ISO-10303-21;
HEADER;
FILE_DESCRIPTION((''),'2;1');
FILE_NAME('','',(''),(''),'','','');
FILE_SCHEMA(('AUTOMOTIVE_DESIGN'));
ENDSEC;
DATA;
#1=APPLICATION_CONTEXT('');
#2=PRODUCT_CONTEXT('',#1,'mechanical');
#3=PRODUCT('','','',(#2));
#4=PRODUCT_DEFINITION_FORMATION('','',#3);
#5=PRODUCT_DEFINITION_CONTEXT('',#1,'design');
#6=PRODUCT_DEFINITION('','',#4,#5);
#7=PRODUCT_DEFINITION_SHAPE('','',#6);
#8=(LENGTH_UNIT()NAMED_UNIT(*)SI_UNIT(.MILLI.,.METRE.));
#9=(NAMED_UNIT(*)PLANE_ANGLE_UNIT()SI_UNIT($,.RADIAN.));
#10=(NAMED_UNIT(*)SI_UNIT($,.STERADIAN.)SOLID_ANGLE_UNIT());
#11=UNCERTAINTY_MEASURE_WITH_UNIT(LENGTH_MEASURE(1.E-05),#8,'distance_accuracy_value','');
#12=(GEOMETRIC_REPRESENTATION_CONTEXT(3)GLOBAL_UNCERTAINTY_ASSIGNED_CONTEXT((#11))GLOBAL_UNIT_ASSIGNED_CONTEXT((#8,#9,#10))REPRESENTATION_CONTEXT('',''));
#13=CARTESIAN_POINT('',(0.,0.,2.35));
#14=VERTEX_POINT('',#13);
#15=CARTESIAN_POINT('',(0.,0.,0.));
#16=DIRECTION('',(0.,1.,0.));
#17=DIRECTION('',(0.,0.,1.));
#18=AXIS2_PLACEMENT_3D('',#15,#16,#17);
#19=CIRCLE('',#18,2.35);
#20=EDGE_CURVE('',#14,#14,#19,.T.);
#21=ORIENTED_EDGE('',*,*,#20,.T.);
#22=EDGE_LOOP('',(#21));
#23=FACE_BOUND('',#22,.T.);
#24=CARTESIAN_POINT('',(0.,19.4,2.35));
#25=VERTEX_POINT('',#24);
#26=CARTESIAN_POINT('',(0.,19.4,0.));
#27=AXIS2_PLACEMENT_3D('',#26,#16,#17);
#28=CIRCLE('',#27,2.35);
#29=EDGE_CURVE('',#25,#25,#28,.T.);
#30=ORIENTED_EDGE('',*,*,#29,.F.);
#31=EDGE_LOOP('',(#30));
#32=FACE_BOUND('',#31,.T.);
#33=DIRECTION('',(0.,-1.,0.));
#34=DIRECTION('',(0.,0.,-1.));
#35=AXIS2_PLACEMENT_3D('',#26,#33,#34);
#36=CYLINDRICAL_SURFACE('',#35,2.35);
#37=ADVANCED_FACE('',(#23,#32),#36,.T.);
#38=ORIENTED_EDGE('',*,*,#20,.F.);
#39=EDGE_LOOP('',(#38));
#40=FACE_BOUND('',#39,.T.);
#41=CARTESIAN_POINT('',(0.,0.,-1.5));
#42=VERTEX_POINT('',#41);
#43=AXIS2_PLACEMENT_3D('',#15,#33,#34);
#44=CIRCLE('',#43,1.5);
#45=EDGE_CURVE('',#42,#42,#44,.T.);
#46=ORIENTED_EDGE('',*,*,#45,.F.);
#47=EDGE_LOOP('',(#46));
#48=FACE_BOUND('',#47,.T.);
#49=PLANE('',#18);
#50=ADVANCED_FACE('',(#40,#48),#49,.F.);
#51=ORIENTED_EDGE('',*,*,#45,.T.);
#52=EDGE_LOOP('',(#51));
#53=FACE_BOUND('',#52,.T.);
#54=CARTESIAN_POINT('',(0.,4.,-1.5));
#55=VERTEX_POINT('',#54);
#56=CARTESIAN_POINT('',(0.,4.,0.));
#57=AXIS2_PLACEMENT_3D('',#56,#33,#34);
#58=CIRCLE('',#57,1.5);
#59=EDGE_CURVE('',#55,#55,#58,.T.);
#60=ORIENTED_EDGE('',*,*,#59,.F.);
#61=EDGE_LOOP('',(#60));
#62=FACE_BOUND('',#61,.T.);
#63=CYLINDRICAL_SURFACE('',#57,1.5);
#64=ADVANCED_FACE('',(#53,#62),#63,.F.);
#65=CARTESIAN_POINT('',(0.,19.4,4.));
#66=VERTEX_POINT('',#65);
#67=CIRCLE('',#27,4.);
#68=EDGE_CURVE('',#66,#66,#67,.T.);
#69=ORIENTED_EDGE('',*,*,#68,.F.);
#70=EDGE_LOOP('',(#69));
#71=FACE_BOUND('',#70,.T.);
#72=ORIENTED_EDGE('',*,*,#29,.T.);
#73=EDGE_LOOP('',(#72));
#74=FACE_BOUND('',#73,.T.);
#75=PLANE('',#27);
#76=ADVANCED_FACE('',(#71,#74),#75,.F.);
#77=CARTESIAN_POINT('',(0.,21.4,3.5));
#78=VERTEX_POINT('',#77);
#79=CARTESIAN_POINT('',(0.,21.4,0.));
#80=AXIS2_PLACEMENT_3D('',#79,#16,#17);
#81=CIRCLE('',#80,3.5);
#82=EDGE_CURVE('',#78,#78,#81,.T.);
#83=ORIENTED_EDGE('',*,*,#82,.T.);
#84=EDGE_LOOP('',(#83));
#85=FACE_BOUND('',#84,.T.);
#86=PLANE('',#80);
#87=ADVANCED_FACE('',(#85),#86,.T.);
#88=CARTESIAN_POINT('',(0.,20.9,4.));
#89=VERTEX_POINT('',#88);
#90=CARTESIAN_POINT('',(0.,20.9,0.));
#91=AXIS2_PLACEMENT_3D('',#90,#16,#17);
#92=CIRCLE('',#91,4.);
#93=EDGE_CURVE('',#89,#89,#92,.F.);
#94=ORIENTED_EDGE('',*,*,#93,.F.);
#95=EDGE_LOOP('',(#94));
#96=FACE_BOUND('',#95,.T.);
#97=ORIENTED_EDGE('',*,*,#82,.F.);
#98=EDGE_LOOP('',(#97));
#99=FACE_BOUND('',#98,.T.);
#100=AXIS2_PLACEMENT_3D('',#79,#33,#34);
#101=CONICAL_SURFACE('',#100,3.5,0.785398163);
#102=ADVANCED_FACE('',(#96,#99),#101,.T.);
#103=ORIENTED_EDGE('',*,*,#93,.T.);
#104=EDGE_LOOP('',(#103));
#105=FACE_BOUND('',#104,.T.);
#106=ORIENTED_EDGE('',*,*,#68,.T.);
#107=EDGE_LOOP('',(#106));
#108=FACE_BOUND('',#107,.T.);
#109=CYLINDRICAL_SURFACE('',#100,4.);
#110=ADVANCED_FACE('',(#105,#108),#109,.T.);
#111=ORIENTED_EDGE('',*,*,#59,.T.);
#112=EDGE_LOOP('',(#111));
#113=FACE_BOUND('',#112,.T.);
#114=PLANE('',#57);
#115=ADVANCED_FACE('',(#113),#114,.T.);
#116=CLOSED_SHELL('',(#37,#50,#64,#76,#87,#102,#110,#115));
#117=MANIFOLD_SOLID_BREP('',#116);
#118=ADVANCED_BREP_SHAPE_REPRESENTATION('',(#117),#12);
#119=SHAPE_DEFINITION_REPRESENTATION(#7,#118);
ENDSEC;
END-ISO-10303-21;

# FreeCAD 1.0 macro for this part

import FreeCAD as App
import Part
import Sketcher
from FreeCAD import Vector


def edges_at(feature, points):
    """Names of the edges that pass closest to the given points."""
    edges = feature.Shape.Edges
    near = lambda p: min(range(len(edges)), key=lambda i: edges[i].distToShape(Part.Vertex(*p))[0])
    return sorted({f"Edge{near(p) + 1}" for p in points})

doc = App.newDocument("Part")
params = doc.addObject("Spreadsheet::Sheet", "Params")
for row, (alias, value) in enumerate([
    ("sketch1_diameter", "4.7 mm"),
    ("pad1_length", "19.4 mm"),
    ("sketch2_diameter", "8 mm"),
    ("pad2_length", "2 mm"),
    ("chamfer_size", "0.5 mm"),
    ("sketch3_diameter", "3 mm"),
    ("pocket1_length", "4 mm"),
], start=1):
    params.set(f"A{row}", alias)
    params.set(f"B{row}", "=" + value)
    params.setAlias(f"B{row}", alias)

body = doc.addObject("PartDesign::Body", "Body")

sketch1 = body.newObject("Sketcher::SketchObject", "Sketch")
sketch1.AttachmentSupport = (doc.getObject("XZ_Plane"), [""])
sketch1.MapMode = "FlatFace"
sketch1.addGeometry(Part.Circle(Vector(0, 0, 0), Vector(0, 0, 1), 2.4), False)
sketch1.addConstraint([
    Sketcher.Constraint("Coincident", 0, 3, -1, 1),
    Sketcher.Constraint("Diameter", 0, 4.7),
])
sketch1.setExpression("Constraints[1]", "Params.sketch1_diameter")
pad1 = body.newObject("PartDesign::Pad", "Pad")
pad1.Profile = sketch1
pad1.setExpression("Length", "Params.pad1_length")
pad1.Reversed = True

sketch2 = body.newObject("Sketcher::SketchObject", "Sketch001")
sketch2.AttachmentSupport = (doc.getObject("XZ_Plane"), [""])
sketch2.MapMode = "FlatFace"
sketch2.AttachmentOffset = App.Placement(Vector(0, 0, -19.4), App.Rotation())
sketch2.addGeometry(Part.Circle(Vector(0, 0, 0), Vector(0, 0, 1), 4), False)
sketch2.addConstraint([
    Sketcher.Constraint("Coincident", 0, 3, -1, 1),
    Sketcher.Constraint("Diameter", 0, 8.0),
])
sketch2.setExpression("Constraints[1]", "Params.sketch2_diameter")
pad2 = body.newObject("PartDesign::Pad", "Pad001")
pad2.Profile = sketch2
pad2.setExpression("Length", "Params.pad2_length")
pad2.Reversed = True
doc.recompute()

chamfer = body.newObject("PartDesign::Chamfer", "Chamfer")
chamfer.Base = (pad2, edges_at(pad2, [(0, 21.4, -4)]))
chamfer.setExpression("Size", "Params.chamfer_size")

sketch3 = body.newObject("Sketcher::SketchObject", "Sketch002")
sketch3.AttachmentSupport = (doc.getObject("XZ_Plane"), [""])
sketch3.MapMode = "FlatFace"
sketch3.addGeometry(Part.Circle(Vector(0, 0, 0), Vector(0, 0, 1), 1.5), False)
sketch3.addConstraint([
    Sketcher.Constraint("Coincident", 0, 3, -1, 1),
    Sketcher.Constraint("Diameter", 0, 3.0),
])
sketch3.setExpression("Constraints[1]", "Params.sketch3_diameter")
pocket1 = body.newObject("PartDesign::Pocket", "Pocket")
pocket1.Profile = sketch3
pocket1.setExpression("Length", "Params.pocket1_length")

doc.recompute()
